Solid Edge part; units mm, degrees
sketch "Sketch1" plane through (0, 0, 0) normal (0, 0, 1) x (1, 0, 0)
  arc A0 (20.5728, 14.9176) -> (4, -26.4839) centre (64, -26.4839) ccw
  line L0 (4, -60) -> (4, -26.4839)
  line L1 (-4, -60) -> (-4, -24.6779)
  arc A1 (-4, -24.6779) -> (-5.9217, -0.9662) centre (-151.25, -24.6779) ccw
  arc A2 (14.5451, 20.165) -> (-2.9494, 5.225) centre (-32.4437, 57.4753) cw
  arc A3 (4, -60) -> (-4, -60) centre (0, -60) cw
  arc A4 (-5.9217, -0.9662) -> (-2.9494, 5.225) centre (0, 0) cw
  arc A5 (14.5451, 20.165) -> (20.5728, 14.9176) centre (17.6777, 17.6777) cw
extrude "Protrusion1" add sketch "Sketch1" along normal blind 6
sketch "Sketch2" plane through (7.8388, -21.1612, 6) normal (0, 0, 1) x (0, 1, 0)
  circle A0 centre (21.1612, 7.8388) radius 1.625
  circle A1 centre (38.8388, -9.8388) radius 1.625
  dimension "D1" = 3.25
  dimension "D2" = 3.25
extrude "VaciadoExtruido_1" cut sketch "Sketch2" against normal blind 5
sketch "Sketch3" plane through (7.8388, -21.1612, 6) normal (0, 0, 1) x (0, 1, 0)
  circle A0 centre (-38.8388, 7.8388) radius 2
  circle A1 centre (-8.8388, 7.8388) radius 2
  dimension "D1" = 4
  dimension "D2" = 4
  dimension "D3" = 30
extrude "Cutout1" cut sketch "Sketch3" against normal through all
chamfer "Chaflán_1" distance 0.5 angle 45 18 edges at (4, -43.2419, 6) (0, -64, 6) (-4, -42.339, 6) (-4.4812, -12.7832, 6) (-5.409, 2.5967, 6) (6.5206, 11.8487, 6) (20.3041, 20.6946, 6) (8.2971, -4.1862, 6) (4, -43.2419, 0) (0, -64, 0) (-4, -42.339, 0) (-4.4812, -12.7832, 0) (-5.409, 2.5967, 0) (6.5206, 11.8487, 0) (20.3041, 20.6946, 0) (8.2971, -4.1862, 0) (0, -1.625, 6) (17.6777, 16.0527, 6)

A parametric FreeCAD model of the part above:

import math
import FreeCAD as App
import Part
import Sketcher
from FreeCAD import Vector
Q = App.Units.Quantity


def edges_at(feature, points):
    """Names of the edges that pass closest to the given points."""
    edges = feature.Shape.Edges
    near = lambda p: min(range(len(edges)), key=lambda i: edges[i].distToShape(Part.Vertex(*p))[0])
    return sorted({f"Edge{near(p) + 1}" for p in points})

doc = App.newDocument("Part")
body = doc.addObject("PartDesign::Body", "Body")

# Sketch on XY plane
sketch1 = doc.addObject("Sketcher::SketchObject", "Sketch")
body.addObject(sketch1)
sketch1.AttachmentSupport = (doc.XY_Plane, [""])
sketch1.MapMode = "FlatFace"
sketch1.addGeometry([
    Part.ArcOfCircle(Part.Circle(Vector(64, -26.5, 0), Vector(0, 0, 1), 60), math.radians(136), math.radians(180)),  # 0
    Part.ArcOfCircle(Part.Circle(Vector(17.7, 17.7, 0), Vector(0, 0, 1), 4), math.radians(-44), math.radians(142)),  # 1
    Part.ArcOfCircle(Part.Circle(Vector(-32.4, 57.5, 0), Vector(0, 0, 1), 60), math.radians(-61), math.radians(-38)),  # 2
    Part.ArcOfCircle(Part.Circle(Vector(0, 0, 0), Vector(0, 0, 1), 6), math.radians(119), math.radians(189)),  # 3
    Part.ArcOfCircle(Part.Circle(Vector(-151.2, -24.7, 0), Vector(0, 0, 1), 147.2), math.radians(0), math.radians(9.27)),  # 4
    Part.LineSegment(Vector(-4, -24.7, 0), Vector(-4, -60, 0)),  # 5
    Part.ArcOfCircle(Part.Circle(Vector(0, -60, 0), Vector(0, 0, 1), 4), math.radians(180), math.radians(360)),  # 6
    Part.LineSegment(Vector(4, -60, 0), Vector(4, -26.5, 0)),  # 7
], False)
sketch1.addConstraint([
    Sketcher.Constraint("Tangent", 0, 1, 1, 1),
    Sketcher.Constraint("Tangent", 1, 2, 2, 2),
    Sketcher.Constraint("Tangent", 2, 1, 3, 1),
    Sketcher.Constraint("Tangent", 3, 2, 4, 2),
    Sketcher.Constraint("Tangent", 4, 1, 5, 1),
    Sketcher.Constraint("Tangent", 5, 2, 6, 1),
    Sketcher.Constraint("Tangent", 6, 2, 7, 1),
    Sketcher.Constraint("Tangent", 7, 2, 0, 2),
    Sketcher.Constraint("Vertical", 5),
    Sketcher.Constraint("Vertical", 7),
    Sketcher.Constraint("Coincident", 3, 3, -1, 1),
    Sketcher.Constraint("Equal", 0, 2),
    Sketcher.Constraint("Equal", 1, 6),
    Sketcher.Constraint("PointOnObject", 6, 3, -2),
    Sketcher.Constraint("Radius", 0, Q("60 mm")),
    Sketcher.Constraint("Radius", 1, Q("4 mm")),
    Sketcher.Constraint("Radius", 3, Q("6 mm")),
    Sketcher.Constraint("DistanceY", 6, 3, -1, 1, Q("60 mm")),
    Sketcher.Constraint("Radius", 4, Q("147.2484 mm")),
    Sketcher.Constraint("DistanceY", 7, 1, 7, 2, Q("33.516 mm")),
    Sketcher.Constraint("DistanceY", 2, 1, 1, 2, Q("14.94 mm")),
])
pad1 = doc.addObject("PartDesign::Pad", "Pad")
body.addObject(pad1)
pad1.Profile = sketch1
pad1.Length = 6

# Sketch on XY plane
sketch2 = doc.addObject("Sketcher::SketchObject", "Sketch001")
body.addObject(sketch2)
sketch2.AttachmentSupport = (doc.XY_Plane, [""])
sketch2.MapMode = "FlatFace"
sketch2.AttachmentOffset = App.Placement(Vector(0, 0, 6), App.Rotation())
sketch2.addGeometry([
    Part.Circle(Vector(0, 0, 0), Vector(0, 0, 1), 1.6),
    Part.Circle(Vector(17.7, 17.7, 0), Vector(0, 0, 1), 1.6),
], False)
sketch2.addConstraint([
    Sketcher.Constraint("Coincident", 0, 3, -1, 1),
    Sketcher.Constraint("Equal", 0, 1),
    Sketcher.Constraint("Diameter", 0, Q("3.25 mm")),
    Sketcher.Constraint("DistanceX", -1, 1, 1, 3, Q("17.6776 mm")),
    Sketcher.Constraint("DistanceY", -1, 1, 1, 3, Q("17.6776 mm")),
])
pocket1 = doc.addObject("PartDesign::Pocket", "Pocket")
body.addObject(pocket1)
pocket1.Profile = sketch2
pocket1.Length = 5

# Sketch on XY plane
sketch3 = doc.addObject("Sketcher::SketchObject", "Sketch002")
body.addObject(sketch3)
sketch3.AttachmentSupport = (doc.XY_Plane, [""])
sketch3.MapMode = "FlatFace"
sketch3.AttachmentOffset = App.Placement(Vector(0, 0, 6), App.Rotation())
sketch3.addGeometry([
    Part.Circle(Vector(0, -60, 0), Vector(0, 0, 1), 2),
    Part.Circle(Vector(0, -30, 0), Vector(0, 0, 1), 2),
], False)
sketch3.addConstraint([
    Sketcher.Constraint("Equal", 0, 1),
    Sketcher.Constraint("PointOnObject", 0, 3, -2),
    Sketcher.Constraint("PointOnObject", 1, 3, -2),
    Sketcher.Constraint("Diameter", 0, Q("4 mm")),
    Sketcher.Constraint("DistanceY", 0, 3, -1, 1, Q("60 mm")),
    Sketcher.Constraint("DistanceY", 1, 3, -1, 1, Q("30 mm")),
])
pocket2 = doc.addObject("PartDesign::Pocket", "Pocket001")
body.addObject(pocket2)
pocket2.Profile = sketch3
pocket2.Type = "ThroughAll"
doc.recompute()

chamfer = doc.addObject("PartDesign::Chamfer", "Chamfer")
body.addObject(chamfer)
chamfer.Base = (pocket2, edges_at(pocket2, [
    (4, -43.242, 6),
    (0, -64, 6),
    (-4, -42.339, 6),
    (-4.481, -12.783, 6),
    (-5.409, 2.597, 6),
    (6.521, 11.849, 6),
    (20.304, 20.695, 6),
    (8.297, -4.186, 6),
    (4, -43.242, 0),
    (0, -64, 0),
    (-4, -42.339, 0),
    (-4.481, -12.783, 0),
    (-5.409, 2.597, 0),
    (6.521, 11.849, 0),
    (20.304, 20.695, 0),
    (8.297, -4.186, 0),
    (0, -1.625, 6),
    (17.678, 16.053, 6),
]))
chamfer.Size = 0.5

doc.recompute()
